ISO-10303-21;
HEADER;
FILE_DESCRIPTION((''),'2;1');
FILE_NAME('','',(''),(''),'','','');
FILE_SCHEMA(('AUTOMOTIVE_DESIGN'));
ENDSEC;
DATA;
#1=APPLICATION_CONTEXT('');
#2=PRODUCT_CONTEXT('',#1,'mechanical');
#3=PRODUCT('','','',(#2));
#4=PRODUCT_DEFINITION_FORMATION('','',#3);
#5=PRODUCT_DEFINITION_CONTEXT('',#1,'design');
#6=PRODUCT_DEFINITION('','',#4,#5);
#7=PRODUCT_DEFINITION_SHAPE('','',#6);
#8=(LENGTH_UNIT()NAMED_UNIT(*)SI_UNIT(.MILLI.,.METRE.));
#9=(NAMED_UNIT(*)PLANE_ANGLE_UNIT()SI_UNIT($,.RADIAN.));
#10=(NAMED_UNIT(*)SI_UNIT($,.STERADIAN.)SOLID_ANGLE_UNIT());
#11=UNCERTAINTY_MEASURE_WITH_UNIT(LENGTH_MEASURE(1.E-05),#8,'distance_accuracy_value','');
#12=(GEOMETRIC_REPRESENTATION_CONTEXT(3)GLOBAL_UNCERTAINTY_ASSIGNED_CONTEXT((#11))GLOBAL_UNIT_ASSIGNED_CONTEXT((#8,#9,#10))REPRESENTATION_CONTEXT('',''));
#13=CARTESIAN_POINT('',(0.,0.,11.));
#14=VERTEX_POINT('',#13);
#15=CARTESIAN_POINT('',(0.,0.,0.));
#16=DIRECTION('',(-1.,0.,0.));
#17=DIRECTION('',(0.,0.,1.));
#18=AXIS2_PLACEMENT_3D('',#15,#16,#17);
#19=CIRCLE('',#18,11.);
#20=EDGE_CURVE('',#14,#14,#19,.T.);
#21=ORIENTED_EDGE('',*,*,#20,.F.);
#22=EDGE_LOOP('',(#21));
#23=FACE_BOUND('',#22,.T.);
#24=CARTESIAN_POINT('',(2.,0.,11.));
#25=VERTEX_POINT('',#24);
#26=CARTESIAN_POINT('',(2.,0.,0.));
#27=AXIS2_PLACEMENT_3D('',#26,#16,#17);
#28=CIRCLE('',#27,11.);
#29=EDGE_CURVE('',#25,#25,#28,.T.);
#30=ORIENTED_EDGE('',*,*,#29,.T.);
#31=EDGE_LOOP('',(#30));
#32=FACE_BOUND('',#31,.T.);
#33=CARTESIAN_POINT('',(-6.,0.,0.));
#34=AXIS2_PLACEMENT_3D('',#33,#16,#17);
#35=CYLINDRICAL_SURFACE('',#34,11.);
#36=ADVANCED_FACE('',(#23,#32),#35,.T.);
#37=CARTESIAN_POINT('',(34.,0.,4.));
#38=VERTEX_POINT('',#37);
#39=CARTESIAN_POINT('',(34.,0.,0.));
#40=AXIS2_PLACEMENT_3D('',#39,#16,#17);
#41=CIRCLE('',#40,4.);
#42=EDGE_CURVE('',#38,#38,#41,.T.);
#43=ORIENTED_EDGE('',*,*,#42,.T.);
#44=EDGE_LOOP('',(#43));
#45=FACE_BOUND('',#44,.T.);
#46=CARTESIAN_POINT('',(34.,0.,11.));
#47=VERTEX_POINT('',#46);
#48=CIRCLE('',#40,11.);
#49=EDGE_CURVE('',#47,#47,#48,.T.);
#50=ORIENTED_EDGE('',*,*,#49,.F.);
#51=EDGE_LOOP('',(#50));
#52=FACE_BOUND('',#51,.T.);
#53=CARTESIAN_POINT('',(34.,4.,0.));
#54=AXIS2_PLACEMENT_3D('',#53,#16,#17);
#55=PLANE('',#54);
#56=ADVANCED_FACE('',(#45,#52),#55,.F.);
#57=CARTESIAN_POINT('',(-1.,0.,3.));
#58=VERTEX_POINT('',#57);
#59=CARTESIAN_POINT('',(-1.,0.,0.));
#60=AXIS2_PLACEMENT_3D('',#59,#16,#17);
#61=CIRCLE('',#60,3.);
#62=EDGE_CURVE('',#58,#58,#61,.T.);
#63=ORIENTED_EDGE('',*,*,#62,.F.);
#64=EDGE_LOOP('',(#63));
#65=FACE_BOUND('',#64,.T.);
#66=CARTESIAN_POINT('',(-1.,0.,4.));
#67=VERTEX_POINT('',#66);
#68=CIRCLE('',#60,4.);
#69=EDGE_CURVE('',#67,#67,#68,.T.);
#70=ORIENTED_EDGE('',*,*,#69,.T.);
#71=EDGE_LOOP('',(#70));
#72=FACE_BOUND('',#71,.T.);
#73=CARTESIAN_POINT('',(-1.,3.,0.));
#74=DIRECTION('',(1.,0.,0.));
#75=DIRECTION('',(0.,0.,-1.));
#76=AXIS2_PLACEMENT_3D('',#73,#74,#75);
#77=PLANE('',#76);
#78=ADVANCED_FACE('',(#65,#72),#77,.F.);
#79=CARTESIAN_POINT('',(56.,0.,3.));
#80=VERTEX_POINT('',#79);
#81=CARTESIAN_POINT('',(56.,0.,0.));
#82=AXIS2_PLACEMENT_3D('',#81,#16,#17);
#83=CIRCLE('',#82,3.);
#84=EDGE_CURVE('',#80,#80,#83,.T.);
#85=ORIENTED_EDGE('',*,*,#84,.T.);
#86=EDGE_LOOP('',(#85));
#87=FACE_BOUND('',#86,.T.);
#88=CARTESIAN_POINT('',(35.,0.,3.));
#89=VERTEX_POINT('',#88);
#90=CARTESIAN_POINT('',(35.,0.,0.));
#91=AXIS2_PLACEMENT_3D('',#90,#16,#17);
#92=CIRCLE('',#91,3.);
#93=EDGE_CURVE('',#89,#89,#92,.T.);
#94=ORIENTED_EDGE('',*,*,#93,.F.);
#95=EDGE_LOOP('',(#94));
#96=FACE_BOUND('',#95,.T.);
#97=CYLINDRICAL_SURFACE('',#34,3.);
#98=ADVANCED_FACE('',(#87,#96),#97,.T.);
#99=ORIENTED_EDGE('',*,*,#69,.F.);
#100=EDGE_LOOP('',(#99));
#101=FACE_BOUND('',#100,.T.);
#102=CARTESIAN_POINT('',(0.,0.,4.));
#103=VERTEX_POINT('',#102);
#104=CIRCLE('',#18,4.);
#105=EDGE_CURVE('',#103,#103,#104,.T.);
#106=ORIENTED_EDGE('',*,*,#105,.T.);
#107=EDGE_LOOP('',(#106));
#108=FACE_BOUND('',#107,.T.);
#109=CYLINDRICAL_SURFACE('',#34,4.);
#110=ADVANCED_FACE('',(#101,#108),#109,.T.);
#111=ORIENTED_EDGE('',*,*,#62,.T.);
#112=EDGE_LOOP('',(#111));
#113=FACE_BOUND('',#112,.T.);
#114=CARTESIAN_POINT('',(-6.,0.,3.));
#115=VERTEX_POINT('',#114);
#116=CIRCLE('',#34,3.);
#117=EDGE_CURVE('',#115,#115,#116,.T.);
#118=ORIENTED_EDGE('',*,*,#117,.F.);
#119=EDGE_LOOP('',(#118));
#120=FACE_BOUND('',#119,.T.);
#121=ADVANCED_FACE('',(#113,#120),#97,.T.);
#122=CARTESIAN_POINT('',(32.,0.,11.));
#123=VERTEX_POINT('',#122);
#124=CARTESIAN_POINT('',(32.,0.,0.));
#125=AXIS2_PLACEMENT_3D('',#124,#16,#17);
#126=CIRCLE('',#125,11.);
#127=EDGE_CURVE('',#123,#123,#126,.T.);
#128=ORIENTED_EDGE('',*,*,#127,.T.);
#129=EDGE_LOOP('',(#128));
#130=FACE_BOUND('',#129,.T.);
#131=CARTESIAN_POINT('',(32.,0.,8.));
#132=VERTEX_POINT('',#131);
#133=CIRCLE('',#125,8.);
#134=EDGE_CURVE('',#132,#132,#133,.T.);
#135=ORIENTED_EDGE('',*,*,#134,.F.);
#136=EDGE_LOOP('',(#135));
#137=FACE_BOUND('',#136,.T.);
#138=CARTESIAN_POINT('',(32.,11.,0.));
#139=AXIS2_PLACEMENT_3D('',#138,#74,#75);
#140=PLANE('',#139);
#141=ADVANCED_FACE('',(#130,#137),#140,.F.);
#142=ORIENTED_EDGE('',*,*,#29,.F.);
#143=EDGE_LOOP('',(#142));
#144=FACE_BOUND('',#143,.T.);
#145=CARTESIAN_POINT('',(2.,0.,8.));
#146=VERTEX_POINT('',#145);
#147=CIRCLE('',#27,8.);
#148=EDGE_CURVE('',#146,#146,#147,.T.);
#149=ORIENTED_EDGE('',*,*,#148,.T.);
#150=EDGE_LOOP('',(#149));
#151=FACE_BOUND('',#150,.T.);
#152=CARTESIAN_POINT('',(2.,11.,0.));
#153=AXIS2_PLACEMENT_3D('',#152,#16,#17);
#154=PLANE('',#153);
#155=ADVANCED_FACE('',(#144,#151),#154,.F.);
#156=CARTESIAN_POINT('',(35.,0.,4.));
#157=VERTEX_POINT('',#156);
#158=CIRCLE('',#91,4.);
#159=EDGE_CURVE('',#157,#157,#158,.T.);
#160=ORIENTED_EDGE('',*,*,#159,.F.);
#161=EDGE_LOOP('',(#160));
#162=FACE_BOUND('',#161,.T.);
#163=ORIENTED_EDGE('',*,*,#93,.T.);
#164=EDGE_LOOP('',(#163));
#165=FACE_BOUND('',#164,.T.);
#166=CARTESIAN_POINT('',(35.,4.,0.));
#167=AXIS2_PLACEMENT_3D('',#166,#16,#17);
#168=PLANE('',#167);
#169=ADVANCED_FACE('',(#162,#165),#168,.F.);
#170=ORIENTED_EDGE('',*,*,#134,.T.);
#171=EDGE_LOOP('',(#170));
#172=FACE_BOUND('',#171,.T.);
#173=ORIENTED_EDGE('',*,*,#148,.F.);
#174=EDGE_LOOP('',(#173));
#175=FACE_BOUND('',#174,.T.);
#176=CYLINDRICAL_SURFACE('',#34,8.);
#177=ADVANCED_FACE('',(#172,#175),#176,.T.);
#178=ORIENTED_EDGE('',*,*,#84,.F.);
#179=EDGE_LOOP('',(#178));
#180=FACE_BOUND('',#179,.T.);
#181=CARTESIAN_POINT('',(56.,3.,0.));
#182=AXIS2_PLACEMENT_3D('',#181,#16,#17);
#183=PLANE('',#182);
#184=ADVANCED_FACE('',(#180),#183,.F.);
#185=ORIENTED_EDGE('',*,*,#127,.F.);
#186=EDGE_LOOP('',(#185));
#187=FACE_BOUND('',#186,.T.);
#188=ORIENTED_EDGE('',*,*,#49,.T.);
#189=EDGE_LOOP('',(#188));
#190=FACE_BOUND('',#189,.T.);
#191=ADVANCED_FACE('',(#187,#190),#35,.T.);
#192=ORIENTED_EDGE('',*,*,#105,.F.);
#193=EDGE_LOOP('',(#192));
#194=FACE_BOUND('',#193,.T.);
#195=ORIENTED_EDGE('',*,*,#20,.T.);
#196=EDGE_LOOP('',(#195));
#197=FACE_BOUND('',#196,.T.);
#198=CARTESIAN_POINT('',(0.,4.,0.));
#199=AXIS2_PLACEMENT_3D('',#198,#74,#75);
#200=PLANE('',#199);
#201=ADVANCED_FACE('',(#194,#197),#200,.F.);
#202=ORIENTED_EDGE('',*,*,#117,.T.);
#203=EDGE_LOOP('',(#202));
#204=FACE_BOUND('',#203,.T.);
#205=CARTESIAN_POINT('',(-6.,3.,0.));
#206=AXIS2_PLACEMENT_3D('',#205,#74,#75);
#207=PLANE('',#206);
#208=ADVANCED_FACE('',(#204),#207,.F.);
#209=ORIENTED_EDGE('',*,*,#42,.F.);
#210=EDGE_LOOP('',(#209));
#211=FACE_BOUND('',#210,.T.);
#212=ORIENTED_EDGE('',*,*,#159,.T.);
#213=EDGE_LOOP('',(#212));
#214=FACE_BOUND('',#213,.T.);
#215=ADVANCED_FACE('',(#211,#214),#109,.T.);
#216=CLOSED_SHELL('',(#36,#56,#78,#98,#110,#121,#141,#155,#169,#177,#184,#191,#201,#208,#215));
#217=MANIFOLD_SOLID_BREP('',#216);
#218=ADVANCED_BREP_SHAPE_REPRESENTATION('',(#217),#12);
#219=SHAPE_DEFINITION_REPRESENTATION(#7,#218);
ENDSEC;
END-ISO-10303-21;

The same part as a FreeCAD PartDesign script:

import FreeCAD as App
import Part
import Sketcher
from FreeCAD import Vector


def add_polygon(sketch, points):
    """Adds a closed chain of lines whose ends are joined by coincident constraints."""
    first, n = sketch.GeometryCount, len(points)
    for a, b in zip(points, points[1:] + points[:1]):
        sketch.addGeometry(Part.LineSegment(App.Vector(*a, 0), App.Vector(*b, 0)), False)
    for i in range(n):
        sketch.addConstraint(Sketcher.Constraint("Coincident", first + i, 2, first + (i + 1) % n, 1))

doc = App.newDocument("Part")
body = doc.addObject("PartDesign::Body", "Body")

# Sketch on XY plane
sketch1 = body.newObject("Sketcher::SketchObject", "Sketch")
sketch1.AttachmentSupport = (doc.getObject("XY_Plane"), [""])
sketch1.MapMode = "FlatFace"
add_polygon(sketch1, [(34, 11), (32, 11), (32, 8), (2, 8), (2, 11), (0, 11), (0, 4), (-1, 4), (-1, 3), (-6, 3), (-6, 0), (56, 0), (56, 3), (35, 3), (35, 4), (34, 4)])  # lines 0-15
sketch1.addConstraint(Sketcher.Constraint("Horizontal", 0))
sketch1.addConstraint(Sketcher.Constraint("Vertical", 1))
sketch1.addConstraint(Sketcher.Constraint("Horizontal", 2))
sketch1.addConstraint(Sketcher.Constraint("Vertical", 3))
sketch1.addConstraint(Sketcher.Constraint("Horizontal", 4))
sketch1.addConstraint(Sketcher.Constraint("Vertical", 5))
sketch1.addConstraint(Sketcher.Constraint("Horizontal", 6))
sketch1.addConstraint(Sketcher.Constraint("Vertical", 7))
sketch1.addConstraint(Sketcher.Constraint("Horizontal", 8))
sketch1.addConstraint(Sketcher.Constraint("Vertical", 9))
sketch1.addConstraint(Sketcher.Constraint("Horizontal", 10))
sketch1.addConstraint(Sketcher.Constraint("Vertical", 11))
sketch1.addConstraint(Sketcher.Constraint("Horizontal", 12))
sketch1.addConstraint(Sketcher.Constraint("Vertical", 13))
sketch1.addConstraint(Sketcher.Constraint("Horizontal", 14))
sketch1.addConstraint(Sketcher.Constraint("Vertical", 15))
sketch1.addConstraint(Sketcher.Constraint("PointOnObject", 4, 2, -2))
sketch1.addConstraint(Sketcher.Constraint("PointOnObject", 9, 2, -1))
sketch1.addConstraint(Sketcher.Constraint("Horizontal", 0, 2, 3, 2))
sketch1.addConstraint(Sketcher.Constraint("Horizontal", 8, 2, 11, 2))
sketch1.addConstraint(Sketcher.Constraint("Horizontal", 6, 2, 13, 2))
sketch1.addConstraint(Sketcher.Constraint("Equal", 0, 4))
sketch1.addConstraint(Sketcher.Constraint("Equal", 6, 14))
sketch1.addConstraint(Sketcher.Constraint("Equal", 14, 7))
sketch1.addConstraint(Sketcher.Constraint("Equal", 3, 9))
sketch1.addConstraint(Sketcher.Constraint("DistanceX", 0, 2, 0, 1, 2.0))
sketch1.addConstraint(Sketcher.Constraint("DistanceX", 2, 2, 2, 1, 30.0))
sketch1.addConstraint(Sketcher.Constraint("DistanceX", 6, 2, 6, 1, 1.0))
sketch1.addConstraint(Sketcher.Constraint("DistanceX", 8, 2, 8, 1, 5.0))
sketch1.addConstraint(Sketcher.Constraint("DistanceX", 10, 1, 10, 2, 62.0))
sketch1.addConstraint(Sketcher.Constraint("DistanceY", 1, 2, 1, 1, 3.0))
sketch1.addConstraint(Sketcher.Constraint("DistanceY", 5, 2, 5, 1, 7.0))
revolution = body.newObject("PartDesign::Revolution", "Revolution")
revolution.Profile = sketch1
revolution.ReferenceAxis = (sketch1, ["H_Axis"])
revolution.Angle = 360

doc.recompute()
